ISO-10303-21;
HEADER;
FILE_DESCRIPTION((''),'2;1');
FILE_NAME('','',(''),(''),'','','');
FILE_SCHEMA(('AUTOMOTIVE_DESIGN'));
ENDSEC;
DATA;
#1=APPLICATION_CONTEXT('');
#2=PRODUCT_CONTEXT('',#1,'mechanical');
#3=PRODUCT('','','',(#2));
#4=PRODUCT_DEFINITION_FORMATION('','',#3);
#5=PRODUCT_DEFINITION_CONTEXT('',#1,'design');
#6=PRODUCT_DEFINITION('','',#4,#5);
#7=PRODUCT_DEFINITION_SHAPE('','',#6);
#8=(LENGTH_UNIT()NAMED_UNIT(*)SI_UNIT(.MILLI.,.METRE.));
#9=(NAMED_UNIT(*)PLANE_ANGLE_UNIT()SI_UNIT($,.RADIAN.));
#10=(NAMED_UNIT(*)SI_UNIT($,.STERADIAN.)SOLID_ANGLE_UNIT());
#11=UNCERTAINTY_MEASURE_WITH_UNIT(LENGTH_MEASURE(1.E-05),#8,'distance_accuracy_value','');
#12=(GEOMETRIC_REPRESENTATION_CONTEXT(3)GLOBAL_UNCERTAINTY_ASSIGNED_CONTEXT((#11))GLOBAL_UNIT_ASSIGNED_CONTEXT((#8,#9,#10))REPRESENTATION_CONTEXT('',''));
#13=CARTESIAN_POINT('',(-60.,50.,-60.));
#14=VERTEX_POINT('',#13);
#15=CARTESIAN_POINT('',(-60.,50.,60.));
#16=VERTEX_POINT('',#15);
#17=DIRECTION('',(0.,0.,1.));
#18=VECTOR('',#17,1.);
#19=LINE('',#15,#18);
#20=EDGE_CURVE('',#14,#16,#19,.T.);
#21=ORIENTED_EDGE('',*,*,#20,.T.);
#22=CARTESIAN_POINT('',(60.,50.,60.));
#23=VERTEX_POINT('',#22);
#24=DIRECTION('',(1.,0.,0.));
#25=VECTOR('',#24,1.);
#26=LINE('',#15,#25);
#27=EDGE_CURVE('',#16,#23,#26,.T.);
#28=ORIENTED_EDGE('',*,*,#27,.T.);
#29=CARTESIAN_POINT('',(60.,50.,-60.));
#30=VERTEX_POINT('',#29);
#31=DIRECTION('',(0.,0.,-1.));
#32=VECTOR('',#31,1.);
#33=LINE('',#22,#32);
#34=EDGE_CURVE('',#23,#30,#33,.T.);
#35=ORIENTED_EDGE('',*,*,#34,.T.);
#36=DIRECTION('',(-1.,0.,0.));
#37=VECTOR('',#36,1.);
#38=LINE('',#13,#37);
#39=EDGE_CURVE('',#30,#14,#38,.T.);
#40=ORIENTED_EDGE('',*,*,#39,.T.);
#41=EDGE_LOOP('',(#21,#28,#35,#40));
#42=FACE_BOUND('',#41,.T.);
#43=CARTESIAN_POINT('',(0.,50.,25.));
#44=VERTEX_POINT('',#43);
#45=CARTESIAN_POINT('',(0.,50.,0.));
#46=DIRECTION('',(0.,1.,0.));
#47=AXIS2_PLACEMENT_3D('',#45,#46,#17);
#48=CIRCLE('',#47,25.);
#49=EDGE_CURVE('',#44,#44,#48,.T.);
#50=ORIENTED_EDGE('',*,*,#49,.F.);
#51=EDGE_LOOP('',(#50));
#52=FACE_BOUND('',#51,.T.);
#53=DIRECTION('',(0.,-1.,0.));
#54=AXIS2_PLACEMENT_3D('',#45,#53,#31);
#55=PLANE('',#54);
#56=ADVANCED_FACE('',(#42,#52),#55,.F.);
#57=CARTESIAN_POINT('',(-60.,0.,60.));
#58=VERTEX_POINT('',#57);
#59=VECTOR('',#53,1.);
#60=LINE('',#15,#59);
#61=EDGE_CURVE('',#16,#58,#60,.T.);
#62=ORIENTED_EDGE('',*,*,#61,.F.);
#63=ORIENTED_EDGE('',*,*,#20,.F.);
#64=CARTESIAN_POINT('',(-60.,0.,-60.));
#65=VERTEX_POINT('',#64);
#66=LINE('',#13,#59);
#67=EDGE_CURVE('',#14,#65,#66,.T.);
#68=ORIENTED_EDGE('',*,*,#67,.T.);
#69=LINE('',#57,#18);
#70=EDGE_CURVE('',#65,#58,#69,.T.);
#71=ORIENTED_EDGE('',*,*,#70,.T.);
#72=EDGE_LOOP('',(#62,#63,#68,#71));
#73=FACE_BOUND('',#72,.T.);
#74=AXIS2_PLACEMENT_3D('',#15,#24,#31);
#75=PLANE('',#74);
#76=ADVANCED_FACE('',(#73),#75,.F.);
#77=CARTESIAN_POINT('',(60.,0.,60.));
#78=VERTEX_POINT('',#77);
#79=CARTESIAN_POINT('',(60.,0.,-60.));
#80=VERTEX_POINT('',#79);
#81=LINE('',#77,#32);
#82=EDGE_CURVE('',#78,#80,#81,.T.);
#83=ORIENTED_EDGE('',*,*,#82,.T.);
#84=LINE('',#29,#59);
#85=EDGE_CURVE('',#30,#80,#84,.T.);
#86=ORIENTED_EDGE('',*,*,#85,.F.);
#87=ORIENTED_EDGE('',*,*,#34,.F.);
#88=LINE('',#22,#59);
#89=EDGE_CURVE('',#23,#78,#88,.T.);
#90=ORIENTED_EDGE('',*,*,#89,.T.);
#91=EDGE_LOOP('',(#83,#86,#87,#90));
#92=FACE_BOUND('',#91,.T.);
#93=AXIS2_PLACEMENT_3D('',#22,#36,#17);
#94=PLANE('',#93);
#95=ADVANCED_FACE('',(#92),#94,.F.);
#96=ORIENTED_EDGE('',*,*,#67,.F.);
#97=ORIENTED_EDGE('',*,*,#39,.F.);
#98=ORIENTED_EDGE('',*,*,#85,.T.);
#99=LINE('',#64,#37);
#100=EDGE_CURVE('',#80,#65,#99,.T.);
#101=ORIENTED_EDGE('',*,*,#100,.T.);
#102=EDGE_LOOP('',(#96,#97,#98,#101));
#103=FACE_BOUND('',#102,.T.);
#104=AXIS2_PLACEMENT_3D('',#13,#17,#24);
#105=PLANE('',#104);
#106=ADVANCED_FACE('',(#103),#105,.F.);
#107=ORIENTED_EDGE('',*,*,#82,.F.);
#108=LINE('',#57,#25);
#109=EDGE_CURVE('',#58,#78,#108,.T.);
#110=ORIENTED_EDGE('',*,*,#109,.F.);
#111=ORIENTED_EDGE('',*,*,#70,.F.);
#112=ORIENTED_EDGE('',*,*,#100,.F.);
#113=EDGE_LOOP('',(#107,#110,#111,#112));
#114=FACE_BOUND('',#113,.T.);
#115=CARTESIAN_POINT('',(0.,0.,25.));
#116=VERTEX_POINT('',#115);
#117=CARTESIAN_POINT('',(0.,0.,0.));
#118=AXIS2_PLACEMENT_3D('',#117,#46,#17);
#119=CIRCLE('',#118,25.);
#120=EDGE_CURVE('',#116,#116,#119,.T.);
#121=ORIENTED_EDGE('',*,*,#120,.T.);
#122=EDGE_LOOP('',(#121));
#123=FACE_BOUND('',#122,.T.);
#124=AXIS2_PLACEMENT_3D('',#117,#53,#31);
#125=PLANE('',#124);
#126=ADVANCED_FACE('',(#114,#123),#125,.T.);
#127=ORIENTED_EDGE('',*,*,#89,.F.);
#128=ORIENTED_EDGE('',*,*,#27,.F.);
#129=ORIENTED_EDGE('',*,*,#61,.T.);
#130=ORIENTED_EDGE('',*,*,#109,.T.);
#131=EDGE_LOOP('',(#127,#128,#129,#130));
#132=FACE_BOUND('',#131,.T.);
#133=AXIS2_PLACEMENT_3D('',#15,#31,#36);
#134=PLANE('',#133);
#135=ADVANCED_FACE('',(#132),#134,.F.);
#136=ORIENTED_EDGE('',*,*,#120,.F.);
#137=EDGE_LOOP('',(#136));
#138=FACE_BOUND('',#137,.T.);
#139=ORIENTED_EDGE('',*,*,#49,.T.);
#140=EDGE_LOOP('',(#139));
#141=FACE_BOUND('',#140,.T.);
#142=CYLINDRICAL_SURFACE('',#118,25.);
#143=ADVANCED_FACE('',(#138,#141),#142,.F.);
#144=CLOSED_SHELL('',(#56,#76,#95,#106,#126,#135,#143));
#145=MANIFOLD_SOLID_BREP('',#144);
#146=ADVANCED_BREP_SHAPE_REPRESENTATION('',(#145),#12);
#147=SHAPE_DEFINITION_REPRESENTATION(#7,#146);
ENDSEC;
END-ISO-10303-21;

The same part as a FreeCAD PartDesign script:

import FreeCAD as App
import Part
import Sketcher


def add_polygon(sketch, points):
    """Adds a closed chain of lines whose ends are joined by coincident constraints."""
    first, n = sketch.GeometryCount, len(points)
    for a, b in zip(points, points[1:] + points[:1]):
        sketch.addGeometry(Part.LineSegment(App.Vector(*a, 0), App.Vector(*b, 0)), False)
    for i in range(n):
        sketch.addConstraint(Sketcher.Constraint("Coincident", first + i, 2, first + (i + 1) % n, 1))

doc = App.newDocument("Part")
body = doc.addObject("PartDesign::Body", "Body")

sketch1 = body.newObject("Sketcher::SketchObject", "Sketch")
sketch1.AttachmentSupport = (doc.getObject("XZ_Plane"), [""])
sketch1.MapMode = "FlatFace"
add_polygon(sketch1, [(-60, -60), (-60, 60), (60, 60), (60, -60)])
sketch1.addConstraint([
    Sketcher.Constraint("Vertical", 0),
    Sketcher.Constraint("Horizontal", 1),
    Sketcher.Constraint("Vertical", 2),
    Sketcher.Constraint("Horizontal", 3),
    Sketcher.Constraint("Symmetric", 0, 2, 2, 2, -1, 1),
    Sketcher.Constraint("Equal", 3, 0),
    Sketcher.Constraint("DistanceX", 1, 1, 1, 2, 120.0),
])
pad1 = body.newObject("PartDesign::Pad", "Pad")
pad1.Profile = sketch1
pad1.Length = 50
pad1.Reversed = True

sketch2 = body.newObject("Sketcher::SketchObject", "Sketch001")
sketch2.AttachmentSupport = (doc.getObject("XZ_Plane"), [""])
sketch2.MapMode = "FlatFace"
sketch2.AttachmentOffset = App.Placement(App.Vector(0, 0, -50), App.Rotation())
sketch2.addGeometry(Part.Circle(App.Vector(0, 0, 0), App.Vector(0, 0, 1), 25), False)
sketch2.addConstraint([
    Sketcher.Constraint("Coincident", 0, 3, -1, 1),
    Sketcher.Constraint("Diameter", 0, 50.0),
])
pocket1 = body.newObject("PartDesign::Pocket", "Pocket")
pocket1.Profile = sketch2
pocket1.Type = "ThroughAll"
pocket1.Reversed = True

doc.recompute()
